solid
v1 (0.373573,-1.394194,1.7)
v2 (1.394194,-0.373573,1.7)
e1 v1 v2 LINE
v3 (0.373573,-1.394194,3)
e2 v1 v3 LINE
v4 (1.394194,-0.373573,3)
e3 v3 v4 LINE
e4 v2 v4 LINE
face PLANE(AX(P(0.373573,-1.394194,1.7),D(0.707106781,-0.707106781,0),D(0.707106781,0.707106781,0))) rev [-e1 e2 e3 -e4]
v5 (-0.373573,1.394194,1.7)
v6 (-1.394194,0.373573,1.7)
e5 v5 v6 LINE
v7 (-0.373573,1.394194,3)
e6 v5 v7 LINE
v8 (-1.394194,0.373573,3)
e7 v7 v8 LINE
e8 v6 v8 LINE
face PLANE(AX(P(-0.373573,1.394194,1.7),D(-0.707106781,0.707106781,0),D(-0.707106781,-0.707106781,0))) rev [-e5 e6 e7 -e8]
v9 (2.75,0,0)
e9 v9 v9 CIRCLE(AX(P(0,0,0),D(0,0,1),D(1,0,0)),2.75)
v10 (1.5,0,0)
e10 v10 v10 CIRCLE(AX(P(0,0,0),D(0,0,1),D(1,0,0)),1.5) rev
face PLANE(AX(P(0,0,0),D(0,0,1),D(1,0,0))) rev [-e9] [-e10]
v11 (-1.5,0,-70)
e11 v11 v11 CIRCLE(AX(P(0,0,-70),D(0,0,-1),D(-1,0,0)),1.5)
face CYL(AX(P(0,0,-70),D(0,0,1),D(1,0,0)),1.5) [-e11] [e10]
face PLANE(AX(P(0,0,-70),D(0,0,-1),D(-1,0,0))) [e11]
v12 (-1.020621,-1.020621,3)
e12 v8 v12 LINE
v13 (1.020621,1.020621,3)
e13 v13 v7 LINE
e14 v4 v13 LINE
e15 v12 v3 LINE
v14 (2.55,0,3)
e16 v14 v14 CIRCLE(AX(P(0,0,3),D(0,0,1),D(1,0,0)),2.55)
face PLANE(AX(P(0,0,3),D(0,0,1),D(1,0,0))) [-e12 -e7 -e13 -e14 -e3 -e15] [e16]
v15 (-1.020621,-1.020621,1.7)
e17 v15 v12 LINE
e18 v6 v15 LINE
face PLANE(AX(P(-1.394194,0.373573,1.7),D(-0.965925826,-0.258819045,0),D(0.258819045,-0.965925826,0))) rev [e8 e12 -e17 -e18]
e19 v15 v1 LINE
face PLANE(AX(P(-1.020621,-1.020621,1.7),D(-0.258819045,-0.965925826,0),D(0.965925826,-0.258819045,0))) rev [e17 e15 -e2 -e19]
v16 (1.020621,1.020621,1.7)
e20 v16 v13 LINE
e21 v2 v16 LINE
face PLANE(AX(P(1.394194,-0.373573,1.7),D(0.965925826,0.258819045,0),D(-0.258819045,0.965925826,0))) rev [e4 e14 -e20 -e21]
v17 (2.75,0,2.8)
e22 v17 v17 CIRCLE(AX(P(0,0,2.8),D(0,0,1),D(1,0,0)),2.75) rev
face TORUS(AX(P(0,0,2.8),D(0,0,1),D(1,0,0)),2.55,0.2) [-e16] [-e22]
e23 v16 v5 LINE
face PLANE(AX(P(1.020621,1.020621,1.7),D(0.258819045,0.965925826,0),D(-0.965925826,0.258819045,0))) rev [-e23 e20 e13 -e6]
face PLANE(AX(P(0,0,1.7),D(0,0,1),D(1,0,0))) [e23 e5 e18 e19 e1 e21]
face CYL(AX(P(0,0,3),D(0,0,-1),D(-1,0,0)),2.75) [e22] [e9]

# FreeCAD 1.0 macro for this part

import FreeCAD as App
import Part
import Sketcher

V = App.Vector
Q = App.Units.Quantity


def edges_at(feature, points):
    """Names of the edges that pass closest to the given points."""
    edges = feature.Shape.Edges
    near = lambda p: min(range(len(edges)), key=lambda i: edges[i].distToShape(Part.Vertex(*p))[0])
    return sorted({f"Edge{near(p) + 1}" for p in points})


def add_polygon(sketch, points):
    """Adds a closed chain of lines whose ends are joined by coincident constraints."""
    first, n = sketch.GeometryCount, len(points)
    for a, b in zip(points, points[1:] + points[:1]):
        sketch.addGeometry(Part.LineSegment(App.Vector(*a, 0), App.Vector(*b, 0)), False)
    for i in range(n):
        sketch.addConstraint(Sketcher.Constraint("Coincident", first + i, 2, first + (i + 1) % n, 1))

doc = App.newDocument("Part")
params = doc.addObject("Spreadsheet::Sheet", "Params")
for row, (alias, value) in enumerate([
    ("sketch1_diameter", "5.5 mm"),
    ("pad1_length", "3 mm"),
    ("pocket1_length", "1.3 mm"),
    ("sketch3_diameter", "3 mm"),
    ("pad2_length", "70 mm"),
    ("fillet_radius", "0.2 mm"),
], start=1):
    params.set(f"A{row}", alias)
    params.set(f"B{row}", "=" + value)
    params.setAlias(f"B{row}", alias)

body = doc.addObject("PartDesign::Body", "Body")

# Sketch on XY plane
sketch1 = doc.addObject("Sketcher::SketchObject", "Sketch")
body.addObject(sketch1)
sketch1.AttachmentSupport = (doc.XY_Plane, [""])
sketch1.MapMode = "FlatFace"
sketch1.addGeometry(Part.Circle(V(0, 0, 0), V(0, 0, 1), 2.8), False)
sketch1.addConstraint(Sketcher.Constraint("Coincident", 0, 3, -1, 1))
sketch1.addConstraint(Sketcher.Constraint("Diameter", 0, Q("5.5 mm")))
sketch1.setExpression("Constraints[1]", "Params.sketch1_diameter")
pad1 = doc.addObject("PartDesign::Pad", "Pad")
body.addObject(pad1)
pad1.Profile = sketch1
pad1.setExpression("Length", "Params.pad1_length")

# Sketch on XY plane
sketch2 = doc.addObject("Sketcher::SketchObject", "Sketch001")
body.addObject(sketch2)
sketch2.AttachmentSupport = (doc.XY_Plane, [""])
sketch2.MapMode = "FlatFace"
sketch2.AttachmentOffset = App.Placement(V(0, 0, 3), App.Rotation())
add_polygon(sketch2, [(-1, -1), (0.4, -1.4), (1.4, -0.4), (1, 1), (-0.4, 1.4), (-1.4, 0.4)])  # lines 0-5
sketch2.addConstraint(Sketcher.Constraint("Symmetric", 0, 2, 3, 2, -1, 1))
sketch2.addConstraint(Sketcher.Constraint("Symmetric", 1, 2, 4, 2, -1, 1))
sketch2.addConstraint(Sketcher.Constraint("Symmetric", 2, 2, 5, 2, -1, 1))
sketch2.addConstraint(Sketcher.Constraint("Equal", 0, 1))
sketch2.addConstraint(Sketcher.Constraint("Equal", 1, 2))
sketch2.addConstraint(Sketcher.Constraint("Angle", 0, Q("-15 deg")))
sketch2.addConstraint(Sketcher.Constraint("Angle", 1, Q("45 deg")))
sketch2.addConstraint(Sketcher.Constraint("Angle", 2, Q("105 deg")))
sketch2.addConstraint(Sketcher.Constraint("DistanceX", -1, 1, 2, 2, Q("1.020621 mm")))
pocket1 = doc.addObject("PartDesign::Pocket", "Pocket")
body.addObject(pocket1)
pocket1.Profile = sketch2
pocket1.setExpression("Length", "Params.pocket1_length")

# Sketch on XY plane
sketch3 = doc.addObject("Sketcher::SketchObject", "Sketch002")
body.addObject(sketch3)
sketch3.AttachmentSupport = (doc.XY_Plane, [""])
sketch3.MapMode = "FlatFace"
sketch3.addGeometry(Part.Circle(V(0, 0, 0), V(0, 0, 1), 1.5), False)
sketch3.addConstraint(Sketcher.Constraint("Coincident", 0, 3, -1, 1))
sketch3.addConstraint(Sketcher.Constraint("Diameter", 0, Q("3 mm")))
sketch3.setExpression("Constraints[1]", "Params.sketch3_diameter")
pad2 = doc.addObject("PartDesign::Pad", "Pad001")
body.addObject(pad2)
pad2.Profile = sketch3
pad2.setExpression("Length", "Params.pad2_length")
pad2.Reversed = True
doc.recompute()

fillet = doc.addObject("PartDesign::Fillet", "Fillet")
body.addObject(fillet)
fillet.Base = (pad2, edges_at(pad2, [(-2.75, 0, 3)]))
fillet.setExpression("Radius", "Params.fillet_radius")

doc.recompute()
